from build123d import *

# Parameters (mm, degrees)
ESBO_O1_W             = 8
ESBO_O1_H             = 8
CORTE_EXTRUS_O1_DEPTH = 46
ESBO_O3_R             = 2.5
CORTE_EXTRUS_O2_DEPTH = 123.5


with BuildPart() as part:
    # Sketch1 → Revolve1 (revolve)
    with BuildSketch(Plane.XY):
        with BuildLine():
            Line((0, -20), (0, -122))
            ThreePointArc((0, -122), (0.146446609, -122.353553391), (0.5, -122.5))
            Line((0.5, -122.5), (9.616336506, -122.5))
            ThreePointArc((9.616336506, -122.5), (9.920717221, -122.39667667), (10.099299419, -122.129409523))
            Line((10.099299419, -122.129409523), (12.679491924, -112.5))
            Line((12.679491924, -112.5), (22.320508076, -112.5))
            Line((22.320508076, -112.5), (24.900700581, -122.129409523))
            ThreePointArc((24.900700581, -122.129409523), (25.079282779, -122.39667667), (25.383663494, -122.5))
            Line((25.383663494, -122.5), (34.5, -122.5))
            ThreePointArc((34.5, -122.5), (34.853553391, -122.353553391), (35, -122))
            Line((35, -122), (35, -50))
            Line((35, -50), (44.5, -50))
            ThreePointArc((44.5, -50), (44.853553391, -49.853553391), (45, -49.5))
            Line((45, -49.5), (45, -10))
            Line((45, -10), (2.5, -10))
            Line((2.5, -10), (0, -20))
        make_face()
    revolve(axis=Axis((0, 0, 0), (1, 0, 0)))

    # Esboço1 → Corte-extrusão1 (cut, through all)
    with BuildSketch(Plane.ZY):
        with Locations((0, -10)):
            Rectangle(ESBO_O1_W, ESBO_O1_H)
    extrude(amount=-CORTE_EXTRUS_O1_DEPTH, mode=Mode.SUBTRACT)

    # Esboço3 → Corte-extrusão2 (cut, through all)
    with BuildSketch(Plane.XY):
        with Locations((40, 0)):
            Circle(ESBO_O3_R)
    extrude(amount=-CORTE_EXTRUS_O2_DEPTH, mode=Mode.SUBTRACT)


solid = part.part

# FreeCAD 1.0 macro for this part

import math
import FreeCAD as App
import Part
import Sketcher
Q = App.Units.Quantity

doc = App.newDocument("Part")
body = doc.addObject("PartDesign::Body", "Body")

# Sketch on XY plane
sketch1 = body.newObject("Sketcher::SketchObject", "Sketch")
sketch1.AttachmentSupport = (doc.getObject("XY_Plane"), [""])
sketch1.MapMode = "FlatFace"
sketch1.addGeometry([
    Part.LineSegment(App.Vector(0, -20, 0), App.Vector(0, -122, 0)),  # 0
    Part.ArcOfCircle(Part.Circle(App.Vector(0.5, -122, 0), App.Vector(0, 0, 1), 0.5), math.radians(180), math.radians(270)),  # 1
    Part.LineSegment(App.Vector(0.5, -122.5, 0), App.Vector(9.62, -122.5, 0)),  # 2
    Part.ArcOfCircle(Part.Circle(App.Vector(9.62, -122, 0), App.Vector(0, 0, 1), 0.5), math.radians(-90), math.radians(-15)),  # 3
    Part.LineSegment(App.Vector(10.1, -122.13, 0), App.Vector(12.68, -112.5, 0)),  # 4
    Part.LineSegment(App.Vector(12.68, -112.5, 0), App.Vector(22.32, -112.5, 0)),  # 5
    Part.LineSegment(App.Vector(22.32, -112.5, 0), App.Vector(24.9, -122.13, 0)),  # 6
    Part.ArcOfCircle(Part.Circle(App.Vector(25.38, -122, 0), App.Vector(0, 0, 1), 0.5), math.radians(-165), math.radians(-90)),  # 7
    Part.LineSegment(App.Vector(25.38, -122.5, 0), App.Vector(34.5, -122.5, 0)),  # 8
    Part.ArcOfCircle(Part.Circle(App.Vector(34.5, -122, 0), App.Vector(0, 0, 1), 0.5), math.radians(-90), math.radians(0)),  # 9
    Part.LineSegment(App.Vector(35, -122, 0), App.Vector(35, -50, 0)),  # 10
    Part.LineSegment(App.Vector(35, -50, 0), App.Vector(44.5, -50, 0)),  # 11
    Part.ArcOfCircle(Part.Circle(App.Vector(44.5, -49.5, 0), App.Vector(0, 0, 1), 0.5), math.radians(-90), math.radians(0)),  # 12
    Part.LineSegment(App.Vector(45, -49.5, 0), App.Vector(45, -10, 0)),  # 13
    Part.LineSegment(App.Vector(45, -10, 0), App.Vector(2.5, -10, 0)),  # 14
    Part.LineSegment(App.Vector(2.5, -10, 0), App.Vector(0, -20, 0)),  # 15
], False)
sketch1.addConstraint([
    Sketcher.Constraint("Tangent", 0, 2, 1, 1),
    Sketcher.Constraint("Tangent", 1, 2, 2, 1),
    Sketcher.Constraint("Tangent", 2, 2, 3, 1),
    Sketcher.Constraint("Tangent", 3, 2, 4, 1),
    Sketcher.Constraint("Coincident", 4, 2, 5, 1),
    Sketcher.Constraint("Coincident", 5, 2, 6, 1),
    Sketcher.Constraint("Tangent", 6, 2, 7, 1),
    Sketcher.Constraint("Tangent", 7, 2, 8, 1),
    Sketcher.Constraint("Tangent", 8, 2, 9, 1),
    Sketcher.Constraint("Tangent", 9, 2, 10, 1),
    Sketcher.Constraint("Coincident", 10, 2, 11, 1),
    Sketcher.Constraint("Tangent", 11, 2, 12, 1),
    Sketcher.Constraint("Tangent", 12, 2, 13, 1),
    Sketcher.Constraint("Coincident", 13, 2, 14, 1),
    Sketcher.Constraint("Coincident", 14, 2, 15, 1),
    Sketcher.Constraint("Coincident", 15, 2, 0, 1),
    Sketcher.Constraint("Vertical", 0),
    Sketcher.Constraint("Horizontal", 2),
    Sketcher.Constraint("Horizontal", 5),
    Sketcher.Constraint("Horizontal", 8),
    Sketcher.Constraint("Vertical", 10),
    Sketcher.Constraint("Horizontal", 11),
    Sketcher.Constraint("Vertical", 13),
    Sketcher.Constraint("Horizontal", 14),
    Sketcher.Constraint("Equal", 1, 3),
    Sketcher.Constraint("Equal", 3, 7),
    Sketcher.Constraint("Equal", 7, 9),
    Sketcher.Constraint("Equal", 9, 12),
    Sketcher.Constraint("PointOnObject", 0, 2, -2),
    Sketcher.Constraint("Horizontal", 3, 3, 7, 3),
    Sketcher.Constraint("Horizontal", 3, 2, 6, 2),
    Sketcher.Constraint("Equal", 2, 8),
    Sketcher.Constraint("Radius", 1, Q("0.5 mm")),
    Sketcher.Constraint("DistanceY", 0, 2, 0, 1, Q("102 mm")),
    Sketcher.Constraint("DistanceY", 10, 1, 10, 2, Q("72 mm")),
    Sketcher.Constraint("Angle", 4, Q("75 deg")),
    Sketcher.Constraint("DistanceX", 11, 1, 11, 2, Q("9.5 mm")),
    Sketcher.Constraint("DistanceX", 14, 2, 14, 1, Q("42.5 mm")),
    Sketcher.Constraint("DistanceY", 13, 1, 13, 2, Q("39.5 mm")),
    Sketcher.Constraint("DistanceY", 1, 3, -1, 1, Q("122 mm")),
    Sketcher.Constraint("DistanceX", -1, 1, 9, 2, Q("35 mm")),
    Sketcher.Constraint("DistanceY", 2, 2, 4, 2, Q("10 mm")),
    Sketcher.Constraint("DistanceX", -1, 1, 3, 2, Q("10.099299 mm")),
])
revolution = body.newObject("PartDesign::Revolution", "Revolution")
revolution.Profile = sketch1
revolution.ReferenceAxis = (sketch1, ["H_Axis"])
revolution.Angle = 360

# Sketch on YZ plane
sketch2 = body.newObject("Sketcher::SketchObject", "Sketch001")
sketch2.AttachmentSupport = (doc.getObject("YZ_Plane"), [""])
sketch2.MapMode = "FlatFace"
sketch2.addGeometry([
    Part.LineSegment(App.Vector(-6, -4, 0), App.Vector(-14, -4, 0)),
    Part.LineSegment(App.Vector(-14, -4, 0), App.Vector(-14, 4, 0)),
    Part.LineSegment(App.Vector(-14, 4, 0), App.Vector(-6, 4, 0)),
    Part.LineSegment(App.Vector(-6, 4, 0), App.Vector(-6, -4, 0)),
], False)
sketch2.addConstraint([
    Sketcher.Constraint("Coincident", 0, 2, 1, 1),
    Sketcher.Constraint("Coincident", 1, 2, 2, 1),
    Sketcher.Constraint("Coincident", 2, 2, 3, 1),
    Sketcher.Constraint("Coincident", 3, 2, 0, 1),
    Sketcher.Constraint("Horizontal", 0),
    Sketcher.Constraint("Vertical", 1),
    Sketcher.Constraint("Horizontal", 2),
    Sketcher.Constraint("Vertical", 3),
    Sketcher.Constraint("Equal", 2, 1),
    Sketcher.Constraint("DistanceX", 0, 2, 0, 1, Q("8 mm")),
    Sketcher.Constraint("DistanceX", 0, 2, -1, 1, Q("14 mm")),
    Sketcher.Constraint("DistanceY", 0, 2, -1, 1, Q("4 mm")),
])
pocket1 = body.newObject("PartDesign::Pocket", "Pocket")
pocket1.Profile = sketch2
pocket1.Type = "ThroughAll"
pocket1.Reversed = True

# Sketch on XY plane
sketch3 = body.newObject("Sketcher::SketchObject", "Sketch002")
sketch3.AttachmentSupport = (doc.getObject("XY_Plane"), [""])
sketch3.MapMode = "FlatFace"
sketch3.addGeometry(Part.Circle(App.Vector(40, 0, 0), App.Vector(0, 0, 1), 2.5), False)
sketch3.addConstraint([
    Sketcher.Constraint("PointOnObject", 0, 3, -1),
    Sketcher.Constraint("Diameter", 0, Q("5 mm")),
    Sketcher.Constraint("DistanceX", -1, 1, 0, 3, Q("40 mm")),
])
pocket2 = body.newObject("PartDesign::Pocket", "Pocket001")
pocket2.Profile = sketch3
pocket2.Type = "ThroughAll"

doc.recompute()
